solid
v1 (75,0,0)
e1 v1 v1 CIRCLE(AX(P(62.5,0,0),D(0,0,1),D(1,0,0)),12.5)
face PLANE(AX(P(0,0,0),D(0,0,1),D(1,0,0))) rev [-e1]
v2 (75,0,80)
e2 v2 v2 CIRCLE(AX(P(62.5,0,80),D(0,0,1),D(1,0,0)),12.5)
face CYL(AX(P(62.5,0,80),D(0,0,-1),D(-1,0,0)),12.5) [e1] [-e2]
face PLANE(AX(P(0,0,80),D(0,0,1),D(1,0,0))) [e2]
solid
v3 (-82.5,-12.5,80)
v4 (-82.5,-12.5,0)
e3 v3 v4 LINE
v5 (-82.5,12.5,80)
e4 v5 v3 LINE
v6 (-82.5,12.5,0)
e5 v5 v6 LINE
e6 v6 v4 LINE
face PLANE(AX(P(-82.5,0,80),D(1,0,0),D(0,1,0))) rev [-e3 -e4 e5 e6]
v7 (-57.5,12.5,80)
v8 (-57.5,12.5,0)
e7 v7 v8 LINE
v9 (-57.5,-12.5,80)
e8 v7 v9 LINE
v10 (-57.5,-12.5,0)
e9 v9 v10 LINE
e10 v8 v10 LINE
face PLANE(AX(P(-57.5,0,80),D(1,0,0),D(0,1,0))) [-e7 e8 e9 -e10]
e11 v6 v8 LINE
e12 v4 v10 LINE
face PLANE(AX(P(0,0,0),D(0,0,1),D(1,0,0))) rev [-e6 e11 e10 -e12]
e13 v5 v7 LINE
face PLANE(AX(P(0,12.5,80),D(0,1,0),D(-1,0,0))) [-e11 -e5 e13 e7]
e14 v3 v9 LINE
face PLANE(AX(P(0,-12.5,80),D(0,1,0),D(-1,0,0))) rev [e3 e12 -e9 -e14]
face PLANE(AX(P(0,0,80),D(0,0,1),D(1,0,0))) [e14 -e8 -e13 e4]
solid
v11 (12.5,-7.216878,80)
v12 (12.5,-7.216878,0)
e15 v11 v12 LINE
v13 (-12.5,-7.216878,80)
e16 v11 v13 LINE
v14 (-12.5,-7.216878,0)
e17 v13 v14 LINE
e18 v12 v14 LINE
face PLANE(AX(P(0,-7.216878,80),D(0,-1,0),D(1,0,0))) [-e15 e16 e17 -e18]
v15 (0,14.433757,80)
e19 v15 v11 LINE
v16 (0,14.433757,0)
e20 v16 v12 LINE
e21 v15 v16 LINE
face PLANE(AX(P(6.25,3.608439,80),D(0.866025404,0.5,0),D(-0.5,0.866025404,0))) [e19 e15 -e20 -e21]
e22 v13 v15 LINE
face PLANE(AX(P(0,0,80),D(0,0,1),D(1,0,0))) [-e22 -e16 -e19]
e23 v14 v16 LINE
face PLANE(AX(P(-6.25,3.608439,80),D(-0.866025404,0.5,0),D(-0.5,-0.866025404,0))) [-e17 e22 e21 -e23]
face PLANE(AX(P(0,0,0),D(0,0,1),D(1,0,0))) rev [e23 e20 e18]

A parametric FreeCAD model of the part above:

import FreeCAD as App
import Part
import Sketcher

V = App.Vector
Q = App.Units.Quantity


def add_polygon(sketch, points):
    """Adds a closed chain of lines whose ends are joined by coincident constraints."""
    first, n = sketch.GeometryCount, len(points)
    for a, b in zip(points, points[1:] + points[:1]):
        sketch.addGeometry(Part.LineSegment(App.Vector(*a, 0), App.Vector(*b, 0)), False)
    for i in range(n):
        sketch.addConstraint(Sketcher.Constraint("Coincident", first + i, 2, first + (i + 1) % n, 1))

doc = App.newDocument("Part")
body = doc.addObject("PartDesign::Body", "Body")

# Sketch on XY plane
sketch1 = body.newObject("Sketcher::SketchObject", "Sketch")
sketch1.AttachmentSupport = (doc.getObject("XY_Plane"), [""])
sketch1.MapMode = "FlatFace"
sketch1.addGeometry(Part.Circle(V(62.5, 0, 0), V(0, 0, 1), 12.5), False)
sketch1.addConstraint(Sketcher.Constraint("PointOnObject", 0, 3, -1))
sketch1.addConstraint(Sketcher.Constraint("Diameter", 0, Q("25 mm")))
sketch1.addConstraint(Sketcher.Constraint("DistanceX", -1, 1, 0, 3, Q("62.5 mm")))
pad1 = body.newObject("PartDesign::Pad", "Pad")
pad1.Profile = sketch1
pad1.Length = 80
body2 = doc.addObject("PartDesign::Body", "Body001")

# Sketch on XY plane
sketch2 = body2.newObject("Sketcher::SketchObject", "Sketch001")
sketch2.AttachmentSupport = (doc.getObject("XY_Plane001"), [""])
sketch2.MapMode = "FlatFace"
add_polygon(sketch2, [(0, 14.433757), (-12.5, -7.216878), (12.5, -7.216878)])  # lines 0-2
sketch2.addConstraint(Sketcher.Constraint("Horizontal", 1))
sketch2.addConstraint(Sketcher.Constraint("PointOnObject", 2, 2, -2))
sketch2.addConstraint(Sketcher.Constraint("Equal", 0, 2))
sketch2.addConstraint(Sketcher.Constraint("DistanceX", 1, 1, 1, 2, Q("25 mm")))
sketch2.addConstraint(Sketcher.Constraint("Angle", 0, Q("-120 deg")))
sketch2.addConstraint(Sketcher.Constraint("DistanceY", 0, 2, -1, 1, Q("7.216878 mm")))
pad2 = body2.newObject("PartDesign::Pad", "Pad001")
pad2.Profile = sketch2
pad2.Length = 80
body3 = doc.addObject("PartDesign::Body", "Body002")

# Sketch on XY plane
sketch3 = body3.newObject("Sketcher::SketchObject", "Sketch002")
sketch3.AttachmentSupport = (doc.getObject("XY_Plane002"), [""])
sketch3.MapMode = "FlatFace"
add_polygon(sketch3, [(-82.5, 12.5), (-82.5, -12.5), (-57.5, -12.5), (-57.5, 12.5)])  # lines 0-3
sketch3.addConstraint(Sketcher.Constraint("Vertical", 0))
sketch3.addConstraint(Sketcher.Constraint("Horizontal", 1))
sketch3.addConstraint(Sketcher.Constraint("Vertical", 2))
sketch3.addConstraint(Sketcher.Constraint("Horizontal", 3))
sketch3.addConstraint(Sketcher.Constraint("Equal", 3, 0))
sketch3.addConstraint(Sketcher.Constraint("DistanceX", 1, 1, 1, 2, Q("25 mm")))
sketch3.addConstraint(Sketcher.Constraint("DistanceX", 0, 2, -1, 1, Q("82.5 mm")))
sketch3.addConstraint(Sketcher.Constraint("DistanceY", 0, 2, -1, 1, Q("12.5 mm")))
pad3 = body3.newObject("PartDesign::Pad", "Pad002")
pad3.Profile = sketch3
pad3.Length = 80

doc.recompute()
